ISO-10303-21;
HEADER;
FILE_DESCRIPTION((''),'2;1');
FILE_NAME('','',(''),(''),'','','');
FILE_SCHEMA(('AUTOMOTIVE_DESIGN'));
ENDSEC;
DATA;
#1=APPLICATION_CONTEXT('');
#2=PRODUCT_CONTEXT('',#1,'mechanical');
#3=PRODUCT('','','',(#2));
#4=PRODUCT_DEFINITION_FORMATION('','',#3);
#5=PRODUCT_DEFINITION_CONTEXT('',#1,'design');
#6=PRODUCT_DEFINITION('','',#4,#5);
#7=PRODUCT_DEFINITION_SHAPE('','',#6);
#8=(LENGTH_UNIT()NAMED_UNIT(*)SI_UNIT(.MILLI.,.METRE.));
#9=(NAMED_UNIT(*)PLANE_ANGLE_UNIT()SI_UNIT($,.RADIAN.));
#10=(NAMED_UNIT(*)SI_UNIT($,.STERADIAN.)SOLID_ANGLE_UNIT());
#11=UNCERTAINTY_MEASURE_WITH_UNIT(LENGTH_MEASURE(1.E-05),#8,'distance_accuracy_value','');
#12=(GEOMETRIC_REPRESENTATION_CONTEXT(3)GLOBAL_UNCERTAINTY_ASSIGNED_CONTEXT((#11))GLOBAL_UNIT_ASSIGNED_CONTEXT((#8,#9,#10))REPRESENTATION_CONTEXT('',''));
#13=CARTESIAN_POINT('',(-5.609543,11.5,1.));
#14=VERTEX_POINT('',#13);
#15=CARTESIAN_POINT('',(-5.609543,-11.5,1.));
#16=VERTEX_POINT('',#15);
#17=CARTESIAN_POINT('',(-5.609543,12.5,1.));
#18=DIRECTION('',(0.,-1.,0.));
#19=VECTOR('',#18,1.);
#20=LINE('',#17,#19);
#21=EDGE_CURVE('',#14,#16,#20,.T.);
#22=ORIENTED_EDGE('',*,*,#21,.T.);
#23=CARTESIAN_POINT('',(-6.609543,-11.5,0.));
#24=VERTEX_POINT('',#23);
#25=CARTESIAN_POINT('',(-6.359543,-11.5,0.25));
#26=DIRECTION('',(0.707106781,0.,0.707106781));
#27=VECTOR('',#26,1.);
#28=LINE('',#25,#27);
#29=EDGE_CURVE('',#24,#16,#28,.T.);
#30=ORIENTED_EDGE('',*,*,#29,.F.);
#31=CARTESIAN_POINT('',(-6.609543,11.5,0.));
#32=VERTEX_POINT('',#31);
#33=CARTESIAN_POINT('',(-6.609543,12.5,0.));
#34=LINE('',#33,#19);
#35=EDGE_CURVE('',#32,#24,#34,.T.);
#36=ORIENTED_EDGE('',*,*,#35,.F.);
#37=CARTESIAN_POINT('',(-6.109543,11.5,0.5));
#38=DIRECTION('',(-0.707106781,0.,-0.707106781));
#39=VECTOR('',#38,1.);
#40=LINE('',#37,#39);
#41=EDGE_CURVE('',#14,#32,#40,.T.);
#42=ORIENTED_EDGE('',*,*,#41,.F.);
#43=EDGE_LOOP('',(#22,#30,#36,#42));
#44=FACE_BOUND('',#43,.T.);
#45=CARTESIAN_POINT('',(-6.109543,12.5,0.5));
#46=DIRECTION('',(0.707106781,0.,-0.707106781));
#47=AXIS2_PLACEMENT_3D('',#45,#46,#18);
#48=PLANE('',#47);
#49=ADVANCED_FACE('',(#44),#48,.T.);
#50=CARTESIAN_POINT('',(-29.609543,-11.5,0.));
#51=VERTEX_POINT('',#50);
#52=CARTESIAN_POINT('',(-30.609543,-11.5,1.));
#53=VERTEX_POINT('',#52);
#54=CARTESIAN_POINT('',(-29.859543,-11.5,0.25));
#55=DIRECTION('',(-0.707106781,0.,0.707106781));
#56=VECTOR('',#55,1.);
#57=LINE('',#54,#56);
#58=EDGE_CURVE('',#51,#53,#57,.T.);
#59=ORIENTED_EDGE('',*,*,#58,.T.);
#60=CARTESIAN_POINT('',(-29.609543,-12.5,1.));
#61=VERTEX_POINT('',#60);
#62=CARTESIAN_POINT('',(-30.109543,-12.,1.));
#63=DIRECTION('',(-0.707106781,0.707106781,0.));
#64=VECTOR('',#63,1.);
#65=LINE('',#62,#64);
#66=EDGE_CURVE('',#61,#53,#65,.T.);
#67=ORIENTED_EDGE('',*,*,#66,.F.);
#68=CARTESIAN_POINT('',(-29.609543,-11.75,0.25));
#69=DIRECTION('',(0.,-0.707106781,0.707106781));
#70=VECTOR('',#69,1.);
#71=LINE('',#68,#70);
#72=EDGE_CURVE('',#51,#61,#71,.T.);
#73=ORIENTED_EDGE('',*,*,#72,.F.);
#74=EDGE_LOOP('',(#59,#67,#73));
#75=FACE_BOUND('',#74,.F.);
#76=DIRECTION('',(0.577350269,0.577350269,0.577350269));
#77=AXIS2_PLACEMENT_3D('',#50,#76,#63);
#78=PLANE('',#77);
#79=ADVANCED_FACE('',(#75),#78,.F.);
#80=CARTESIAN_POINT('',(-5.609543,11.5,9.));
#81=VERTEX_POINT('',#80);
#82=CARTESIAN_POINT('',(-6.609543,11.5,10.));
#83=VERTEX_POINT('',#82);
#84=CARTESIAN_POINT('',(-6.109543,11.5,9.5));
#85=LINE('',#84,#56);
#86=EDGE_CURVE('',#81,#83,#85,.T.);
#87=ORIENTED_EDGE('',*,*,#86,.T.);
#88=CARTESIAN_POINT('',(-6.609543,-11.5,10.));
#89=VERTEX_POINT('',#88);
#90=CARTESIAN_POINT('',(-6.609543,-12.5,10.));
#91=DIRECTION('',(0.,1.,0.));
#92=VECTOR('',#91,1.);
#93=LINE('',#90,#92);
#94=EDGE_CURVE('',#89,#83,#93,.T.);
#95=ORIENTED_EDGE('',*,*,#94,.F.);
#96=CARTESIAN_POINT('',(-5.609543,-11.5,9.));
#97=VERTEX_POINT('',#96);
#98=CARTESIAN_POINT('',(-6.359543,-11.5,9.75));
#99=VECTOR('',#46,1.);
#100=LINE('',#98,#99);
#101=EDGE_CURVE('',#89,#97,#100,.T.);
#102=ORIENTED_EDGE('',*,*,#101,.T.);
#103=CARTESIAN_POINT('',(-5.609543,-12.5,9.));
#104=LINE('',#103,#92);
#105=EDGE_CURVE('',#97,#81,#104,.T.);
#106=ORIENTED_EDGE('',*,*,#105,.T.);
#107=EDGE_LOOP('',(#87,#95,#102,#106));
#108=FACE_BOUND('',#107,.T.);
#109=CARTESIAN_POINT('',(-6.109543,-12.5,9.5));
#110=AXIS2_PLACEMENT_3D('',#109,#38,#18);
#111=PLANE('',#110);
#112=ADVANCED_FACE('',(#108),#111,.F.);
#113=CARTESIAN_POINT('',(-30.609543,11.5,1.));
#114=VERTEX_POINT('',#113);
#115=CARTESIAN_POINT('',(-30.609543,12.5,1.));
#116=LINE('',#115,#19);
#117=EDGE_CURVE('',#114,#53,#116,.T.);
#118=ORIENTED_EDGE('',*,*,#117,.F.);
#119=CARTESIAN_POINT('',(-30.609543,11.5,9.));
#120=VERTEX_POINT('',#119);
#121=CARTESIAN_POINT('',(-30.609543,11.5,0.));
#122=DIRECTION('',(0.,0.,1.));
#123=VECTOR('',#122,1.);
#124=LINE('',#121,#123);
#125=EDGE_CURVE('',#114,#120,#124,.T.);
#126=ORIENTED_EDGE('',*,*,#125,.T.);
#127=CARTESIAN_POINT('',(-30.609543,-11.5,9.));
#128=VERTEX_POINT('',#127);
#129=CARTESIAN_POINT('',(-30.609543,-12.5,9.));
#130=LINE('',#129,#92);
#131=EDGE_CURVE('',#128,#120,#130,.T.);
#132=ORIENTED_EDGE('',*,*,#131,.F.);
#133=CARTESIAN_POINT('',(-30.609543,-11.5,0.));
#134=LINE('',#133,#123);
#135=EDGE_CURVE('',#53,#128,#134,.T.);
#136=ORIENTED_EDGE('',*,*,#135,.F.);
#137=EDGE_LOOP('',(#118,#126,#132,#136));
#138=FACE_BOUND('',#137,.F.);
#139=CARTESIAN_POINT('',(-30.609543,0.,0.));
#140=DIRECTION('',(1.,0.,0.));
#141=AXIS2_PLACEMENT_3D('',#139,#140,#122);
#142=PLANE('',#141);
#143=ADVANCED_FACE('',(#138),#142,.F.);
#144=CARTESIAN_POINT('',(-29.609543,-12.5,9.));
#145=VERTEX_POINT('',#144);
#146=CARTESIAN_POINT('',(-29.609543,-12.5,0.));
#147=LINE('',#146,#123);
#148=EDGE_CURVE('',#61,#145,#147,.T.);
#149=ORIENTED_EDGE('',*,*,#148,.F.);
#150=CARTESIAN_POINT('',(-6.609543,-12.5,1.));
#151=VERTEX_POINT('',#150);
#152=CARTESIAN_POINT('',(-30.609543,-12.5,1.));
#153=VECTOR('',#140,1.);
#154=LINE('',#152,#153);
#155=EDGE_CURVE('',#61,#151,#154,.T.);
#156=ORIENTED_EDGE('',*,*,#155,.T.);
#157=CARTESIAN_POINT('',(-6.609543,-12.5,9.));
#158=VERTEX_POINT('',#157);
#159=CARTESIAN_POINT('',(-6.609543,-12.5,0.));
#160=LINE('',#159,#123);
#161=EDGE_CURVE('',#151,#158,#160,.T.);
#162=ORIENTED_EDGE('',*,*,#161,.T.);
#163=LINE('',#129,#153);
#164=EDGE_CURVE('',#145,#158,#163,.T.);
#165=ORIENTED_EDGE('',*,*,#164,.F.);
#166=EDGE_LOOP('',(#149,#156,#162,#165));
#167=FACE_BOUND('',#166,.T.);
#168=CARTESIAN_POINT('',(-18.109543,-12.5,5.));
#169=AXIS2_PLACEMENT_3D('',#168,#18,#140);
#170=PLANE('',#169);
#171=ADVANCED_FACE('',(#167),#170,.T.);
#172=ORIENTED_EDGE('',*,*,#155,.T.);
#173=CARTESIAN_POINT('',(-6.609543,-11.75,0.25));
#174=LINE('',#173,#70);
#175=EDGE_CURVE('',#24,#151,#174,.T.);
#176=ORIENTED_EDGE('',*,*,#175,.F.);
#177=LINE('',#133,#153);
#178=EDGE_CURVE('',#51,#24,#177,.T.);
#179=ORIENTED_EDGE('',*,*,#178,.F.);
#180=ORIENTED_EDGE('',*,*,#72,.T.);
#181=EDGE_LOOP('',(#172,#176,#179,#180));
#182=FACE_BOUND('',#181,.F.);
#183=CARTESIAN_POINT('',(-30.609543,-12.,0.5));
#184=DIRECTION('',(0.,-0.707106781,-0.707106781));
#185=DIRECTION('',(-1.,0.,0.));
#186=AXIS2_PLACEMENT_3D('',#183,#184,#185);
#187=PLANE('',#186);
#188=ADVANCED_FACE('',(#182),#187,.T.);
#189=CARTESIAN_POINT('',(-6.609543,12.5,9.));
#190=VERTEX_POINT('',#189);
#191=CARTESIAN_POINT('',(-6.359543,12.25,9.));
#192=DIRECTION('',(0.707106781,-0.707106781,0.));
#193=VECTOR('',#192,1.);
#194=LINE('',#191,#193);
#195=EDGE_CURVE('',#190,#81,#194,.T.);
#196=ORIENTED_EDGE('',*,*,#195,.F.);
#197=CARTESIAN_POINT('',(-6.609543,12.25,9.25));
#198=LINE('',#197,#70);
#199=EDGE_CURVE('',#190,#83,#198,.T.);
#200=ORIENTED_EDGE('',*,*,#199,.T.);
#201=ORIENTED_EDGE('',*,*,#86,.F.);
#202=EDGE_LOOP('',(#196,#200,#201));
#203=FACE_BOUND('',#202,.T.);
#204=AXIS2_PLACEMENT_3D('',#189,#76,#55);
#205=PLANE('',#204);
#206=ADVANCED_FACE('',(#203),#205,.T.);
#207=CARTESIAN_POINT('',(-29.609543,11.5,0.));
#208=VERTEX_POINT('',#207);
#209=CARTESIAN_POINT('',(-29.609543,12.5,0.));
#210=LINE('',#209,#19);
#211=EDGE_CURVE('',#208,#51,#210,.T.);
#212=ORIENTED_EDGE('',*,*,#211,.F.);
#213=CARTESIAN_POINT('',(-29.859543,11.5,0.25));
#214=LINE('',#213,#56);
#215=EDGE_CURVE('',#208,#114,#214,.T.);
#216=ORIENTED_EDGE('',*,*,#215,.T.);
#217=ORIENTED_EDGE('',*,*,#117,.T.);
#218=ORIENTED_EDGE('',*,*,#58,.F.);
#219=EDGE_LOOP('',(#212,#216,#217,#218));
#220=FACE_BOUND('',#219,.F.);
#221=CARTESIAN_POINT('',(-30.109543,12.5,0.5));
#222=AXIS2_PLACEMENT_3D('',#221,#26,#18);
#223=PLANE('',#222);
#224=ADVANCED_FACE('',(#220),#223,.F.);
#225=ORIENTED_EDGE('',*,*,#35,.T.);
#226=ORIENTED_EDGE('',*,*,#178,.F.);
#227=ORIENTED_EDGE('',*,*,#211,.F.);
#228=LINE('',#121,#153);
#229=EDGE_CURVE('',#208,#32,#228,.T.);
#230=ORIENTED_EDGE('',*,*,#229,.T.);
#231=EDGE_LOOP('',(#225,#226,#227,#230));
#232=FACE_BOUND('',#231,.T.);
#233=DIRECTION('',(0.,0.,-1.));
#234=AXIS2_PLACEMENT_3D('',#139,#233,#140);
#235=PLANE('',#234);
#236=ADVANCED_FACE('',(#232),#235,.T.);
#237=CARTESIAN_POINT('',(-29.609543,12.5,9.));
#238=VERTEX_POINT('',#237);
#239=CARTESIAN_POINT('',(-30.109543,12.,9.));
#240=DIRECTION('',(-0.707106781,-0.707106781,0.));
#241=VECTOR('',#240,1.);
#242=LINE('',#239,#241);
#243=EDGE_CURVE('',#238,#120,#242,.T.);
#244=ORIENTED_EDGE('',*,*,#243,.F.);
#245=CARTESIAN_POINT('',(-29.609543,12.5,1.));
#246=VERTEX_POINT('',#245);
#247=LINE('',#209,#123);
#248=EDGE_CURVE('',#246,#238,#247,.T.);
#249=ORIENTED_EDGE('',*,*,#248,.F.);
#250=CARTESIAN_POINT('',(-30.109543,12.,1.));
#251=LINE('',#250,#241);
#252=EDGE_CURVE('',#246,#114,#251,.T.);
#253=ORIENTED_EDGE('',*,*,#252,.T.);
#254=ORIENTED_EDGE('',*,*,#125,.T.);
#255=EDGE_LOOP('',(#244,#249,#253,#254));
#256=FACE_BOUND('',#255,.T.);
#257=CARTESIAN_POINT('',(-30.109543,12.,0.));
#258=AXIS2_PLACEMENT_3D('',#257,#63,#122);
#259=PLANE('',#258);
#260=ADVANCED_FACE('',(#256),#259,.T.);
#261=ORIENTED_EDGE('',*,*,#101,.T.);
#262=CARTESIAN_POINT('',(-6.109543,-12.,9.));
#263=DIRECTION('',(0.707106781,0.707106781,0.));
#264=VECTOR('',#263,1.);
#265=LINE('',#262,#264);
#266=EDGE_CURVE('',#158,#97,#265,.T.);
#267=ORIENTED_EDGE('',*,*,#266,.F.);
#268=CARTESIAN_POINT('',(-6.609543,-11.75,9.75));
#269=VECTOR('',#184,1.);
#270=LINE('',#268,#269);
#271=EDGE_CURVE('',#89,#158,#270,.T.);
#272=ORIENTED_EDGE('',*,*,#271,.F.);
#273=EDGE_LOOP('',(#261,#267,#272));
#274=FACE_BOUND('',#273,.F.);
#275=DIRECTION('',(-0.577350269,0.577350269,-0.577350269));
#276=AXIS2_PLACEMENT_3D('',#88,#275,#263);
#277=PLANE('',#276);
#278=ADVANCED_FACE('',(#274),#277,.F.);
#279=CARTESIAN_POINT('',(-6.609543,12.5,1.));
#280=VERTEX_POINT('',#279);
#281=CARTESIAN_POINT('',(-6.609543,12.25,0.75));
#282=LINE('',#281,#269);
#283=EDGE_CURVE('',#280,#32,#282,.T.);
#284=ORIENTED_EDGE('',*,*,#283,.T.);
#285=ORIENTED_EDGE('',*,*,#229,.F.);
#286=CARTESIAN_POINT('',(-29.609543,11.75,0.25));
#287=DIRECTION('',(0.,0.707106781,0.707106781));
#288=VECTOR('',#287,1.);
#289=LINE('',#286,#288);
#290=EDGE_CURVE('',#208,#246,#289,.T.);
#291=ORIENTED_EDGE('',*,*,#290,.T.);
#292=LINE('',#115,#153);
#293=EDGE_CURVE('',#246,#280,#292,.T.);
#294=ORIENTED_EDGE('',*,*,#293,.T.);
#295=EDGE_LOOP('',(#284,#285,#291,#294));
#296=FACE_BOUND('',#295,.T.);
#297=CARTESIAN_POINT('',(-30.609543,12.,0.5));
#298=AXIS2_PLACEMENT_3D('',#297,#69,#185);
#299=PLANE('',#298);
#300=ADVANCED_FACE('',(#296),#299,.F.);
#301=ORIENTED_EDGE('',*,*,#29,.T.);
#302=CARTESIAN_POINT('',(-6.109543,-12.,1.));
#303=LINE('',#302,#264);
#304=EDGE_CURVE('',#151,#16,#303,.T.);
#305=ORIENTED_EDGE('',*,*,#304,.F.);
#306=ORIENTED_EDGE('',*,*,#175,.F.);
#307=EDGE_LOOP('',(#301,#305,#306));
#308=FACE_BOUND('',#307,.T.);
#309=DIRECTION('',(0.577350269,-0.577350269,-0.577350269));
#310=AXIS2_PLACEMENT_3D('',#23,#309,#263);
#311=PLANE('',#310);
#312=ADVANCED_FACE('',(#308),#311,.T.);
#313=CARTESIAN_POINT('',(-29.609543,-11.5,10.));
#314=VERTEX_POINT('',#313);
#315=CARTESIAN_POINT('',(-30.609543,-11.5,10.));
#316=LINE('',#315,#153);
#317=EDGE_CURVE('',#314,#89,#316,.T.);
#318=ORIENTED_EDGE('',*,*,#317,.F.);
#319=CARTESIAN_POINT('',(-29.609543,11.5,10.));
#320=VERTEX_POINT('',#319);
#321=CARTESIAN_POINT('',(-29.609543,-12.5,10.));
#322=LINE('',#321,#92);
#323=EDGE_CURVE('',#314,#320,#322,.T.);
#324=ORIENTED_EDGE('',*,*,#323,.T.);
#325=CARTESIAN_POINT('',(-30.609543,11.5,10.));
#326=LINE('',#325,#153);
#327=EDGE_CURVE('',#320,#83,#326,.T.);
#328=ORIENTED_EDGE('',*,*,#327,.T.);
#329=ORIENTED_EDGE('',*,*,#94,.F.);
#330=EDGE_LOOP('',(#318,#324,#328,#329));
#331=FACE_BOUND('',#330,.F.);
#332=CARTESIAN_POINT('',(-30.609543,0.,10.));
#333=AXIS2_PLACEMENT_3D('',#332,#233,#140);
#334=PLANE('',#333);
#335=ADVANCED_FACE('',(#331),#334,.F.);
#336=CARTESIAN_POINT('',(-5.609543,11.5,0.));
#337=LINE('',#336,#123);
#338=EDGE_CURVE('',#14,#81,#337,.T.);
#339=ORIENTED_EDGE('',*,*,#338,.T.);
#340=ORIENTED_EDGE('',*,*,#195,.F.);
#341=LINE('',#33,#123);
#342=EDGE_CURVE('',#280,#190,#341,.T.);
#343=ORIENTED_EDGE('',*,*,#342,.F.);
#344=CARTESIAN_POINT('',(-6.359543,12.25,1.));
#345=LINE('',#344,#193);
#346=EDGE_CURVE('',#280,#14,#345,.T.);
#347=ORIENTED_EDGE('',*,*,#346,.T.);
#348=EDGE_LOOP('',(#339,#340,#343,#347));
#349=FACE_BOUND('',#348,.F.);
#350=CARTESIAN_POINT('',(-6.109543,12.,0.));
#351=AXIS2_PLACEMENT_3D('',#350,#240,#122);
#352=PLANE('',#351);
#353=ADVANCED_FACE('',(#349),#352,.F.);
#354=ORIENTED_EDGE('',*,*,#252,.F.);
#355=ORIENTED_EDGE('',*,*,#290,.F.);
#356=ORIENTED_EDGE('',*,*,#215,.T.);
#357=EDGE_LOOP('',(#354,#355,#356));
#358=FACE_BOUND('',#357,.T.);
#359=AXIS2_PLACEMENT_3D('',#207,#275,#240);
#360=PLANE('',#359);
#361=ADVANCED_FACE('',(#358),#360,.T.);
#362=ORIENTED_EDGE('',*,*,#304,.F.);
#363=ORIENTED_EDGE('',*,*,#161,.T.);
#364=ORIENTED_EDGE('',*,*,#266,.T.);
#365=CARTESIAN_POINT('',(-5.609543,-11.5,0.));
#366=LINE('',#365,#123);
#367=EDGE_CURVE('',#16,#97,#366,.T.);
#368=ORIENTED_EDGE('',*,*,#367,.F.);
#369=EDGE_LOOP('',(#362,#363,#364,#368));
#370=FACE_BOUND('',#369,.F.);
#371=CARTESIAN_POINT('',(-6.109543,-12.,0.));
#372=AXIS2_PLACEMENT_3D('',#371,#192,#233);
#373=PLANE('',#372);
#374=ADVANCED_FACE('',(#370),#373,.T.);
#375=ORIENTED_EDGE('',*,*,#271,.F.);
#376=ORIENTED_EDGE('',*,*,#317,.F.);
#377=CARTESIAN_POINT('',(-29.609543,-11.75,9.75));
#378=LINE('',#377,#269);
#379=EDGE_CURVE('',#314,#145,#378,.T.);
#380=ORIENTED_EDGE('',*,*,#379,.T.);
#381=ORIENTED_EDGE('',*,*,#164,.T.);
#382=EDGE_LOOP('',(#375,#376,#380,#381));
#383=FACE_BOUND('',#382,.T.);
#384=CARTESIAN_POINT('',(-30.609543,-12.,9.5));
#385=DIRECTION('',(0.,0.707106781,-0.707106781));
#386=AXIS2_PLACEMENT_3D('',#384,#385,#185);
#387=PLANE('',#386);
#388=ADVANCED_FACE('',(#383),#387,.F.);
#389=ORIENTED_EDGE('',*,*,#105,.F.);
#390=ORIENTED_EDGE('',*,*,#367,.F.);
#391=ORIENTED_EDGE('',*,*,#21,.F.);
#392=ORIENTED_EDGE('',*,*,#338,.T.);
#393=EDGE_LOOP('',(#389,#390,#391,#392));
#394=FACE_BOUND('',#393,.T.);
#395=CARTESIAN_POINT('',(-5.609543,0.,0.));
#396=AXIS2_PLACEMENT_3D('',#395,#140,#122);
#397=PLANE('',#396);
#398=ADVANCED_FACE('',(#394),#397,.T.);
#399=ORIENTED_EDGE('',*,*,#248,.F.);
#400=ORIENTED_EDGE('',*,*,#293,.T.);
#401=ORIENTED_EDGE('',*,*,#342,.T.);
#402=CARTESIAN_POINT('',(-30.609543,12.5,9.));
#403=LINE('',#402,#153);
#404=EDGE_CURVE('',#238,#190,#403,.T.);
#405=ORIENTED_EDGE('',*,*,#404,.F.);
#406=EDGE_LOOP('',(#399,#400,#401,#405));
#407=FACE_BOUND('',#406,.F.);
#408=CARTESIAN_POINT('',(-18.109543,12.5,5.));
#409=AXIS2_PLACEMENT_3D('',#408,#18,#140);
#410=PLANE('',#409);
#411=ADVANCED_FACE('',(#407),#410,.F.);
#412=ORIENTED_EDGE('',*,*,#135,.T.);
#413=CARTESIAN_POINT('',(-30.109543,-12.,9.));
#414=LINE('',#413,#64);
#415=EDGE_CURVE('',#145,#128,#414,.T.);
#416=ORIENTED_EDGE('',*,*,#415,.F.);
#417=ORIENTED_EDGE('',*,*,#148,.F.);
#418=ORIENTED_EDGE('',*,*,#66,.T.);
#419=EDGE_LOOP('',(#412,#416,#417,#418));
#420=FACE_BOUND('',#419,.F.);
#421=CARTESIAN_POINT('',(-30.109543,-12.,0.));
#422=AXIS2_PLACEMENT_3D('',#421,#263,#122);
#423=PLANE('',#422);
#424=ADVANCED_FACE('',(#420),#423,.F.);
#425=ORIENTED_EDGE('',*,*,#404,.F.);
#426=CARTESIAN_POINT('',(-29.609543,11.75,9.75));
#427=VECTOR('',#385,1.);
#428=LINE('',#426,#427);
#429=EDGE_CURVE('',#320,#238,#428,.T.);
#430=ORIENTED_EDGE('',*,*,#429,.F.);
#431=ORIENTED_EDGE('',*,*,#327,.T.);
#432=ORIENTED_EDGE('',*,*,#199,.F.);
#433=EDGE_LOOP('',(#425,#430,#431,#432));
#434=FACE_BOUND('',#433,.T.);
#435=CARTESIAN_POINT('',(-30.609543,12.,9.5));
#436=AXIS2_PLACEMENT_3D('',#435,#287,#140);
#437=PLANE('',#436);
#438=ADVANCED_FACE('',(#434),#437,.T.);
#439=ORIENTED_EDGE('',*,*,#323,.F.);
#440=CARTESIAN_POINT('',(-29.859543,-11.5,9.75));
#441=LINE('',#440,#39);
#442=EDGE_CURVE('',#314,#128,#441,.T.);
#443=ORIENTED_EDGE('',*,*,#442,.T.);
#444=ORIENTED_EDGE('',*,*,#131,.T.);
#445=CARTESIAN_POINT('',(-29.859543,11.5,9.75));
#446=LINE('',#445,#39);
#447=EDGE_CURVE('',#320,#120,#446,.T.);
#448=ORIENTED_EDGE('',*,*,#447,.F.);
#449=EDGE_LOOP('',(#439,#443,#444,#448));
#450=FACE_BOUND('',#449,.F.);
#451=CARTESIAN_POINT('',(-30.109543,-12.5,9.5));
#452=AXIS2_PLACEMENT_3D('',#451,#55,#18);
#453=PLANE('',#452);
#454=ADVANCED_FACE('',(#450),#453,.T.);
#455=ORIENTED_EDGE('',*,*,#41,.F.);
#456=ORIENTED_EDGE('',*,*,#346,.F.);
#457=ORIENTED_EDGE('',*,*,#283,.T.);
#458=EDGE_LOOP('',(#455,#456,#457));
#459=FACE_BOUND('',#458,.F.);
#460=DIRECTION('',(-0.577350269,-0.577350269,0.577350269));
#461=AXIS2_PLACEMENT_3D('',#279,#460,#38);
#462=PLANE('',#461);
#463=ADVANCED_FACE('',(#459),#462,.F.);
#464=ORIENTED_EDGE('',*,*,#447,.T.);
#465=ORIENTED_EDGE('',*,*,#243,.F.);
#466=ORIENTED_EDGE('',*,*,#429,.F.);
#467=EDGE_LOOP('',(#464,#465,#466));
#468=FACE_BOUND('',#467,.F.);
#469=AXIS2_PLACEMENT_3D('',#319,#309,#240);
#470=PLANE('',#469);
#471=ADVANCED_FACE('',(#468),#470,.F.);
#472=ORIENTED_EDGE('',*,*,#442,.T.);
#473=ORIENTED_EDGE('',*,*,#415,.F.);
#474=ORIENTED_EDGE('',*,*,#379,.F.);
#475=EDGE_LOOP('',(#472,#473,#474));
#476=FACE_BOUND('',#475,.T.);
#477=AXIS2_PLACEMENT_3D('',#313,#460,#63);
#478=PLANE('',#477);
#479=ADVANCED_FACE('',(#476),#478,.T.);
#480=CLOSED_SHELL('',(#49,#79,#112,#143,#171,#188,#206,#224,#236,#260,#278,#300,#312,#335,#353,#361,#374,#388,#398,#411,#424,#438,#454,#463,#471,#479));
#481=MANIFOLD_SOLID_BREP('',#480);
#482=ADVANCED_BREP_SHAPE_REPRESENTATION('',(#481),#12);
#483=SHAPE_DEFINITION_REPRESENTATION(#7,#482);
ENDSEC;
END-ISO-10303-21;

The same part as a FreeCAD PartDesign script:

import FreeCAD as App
import Part
import Sketcher


def add_polygon(sketch, points):
    """Adds a closed chain of lines whose ends are joined by coincident constraints."""
    first, n = sketch.GeometryCount, len(points)
    for a, b in zip(points, points[1:] + points[:1]):
        sketch.addGeometry(Part.LineSegment(App.Vector(*a, 0), App.Vector(*b, 0)), False)
    for i in range(n):
        sketch.addConstraint(Sketcher.Constraint("Coincident", first + i, 2, first + (i + 1) % n, 1))

doc = App.newDocument("Part")
body = doc.addObject("PartDesign::Body", "Body")

# Sketch on XZ plane
sketch1 = body.newObject("Sketcher::SketchObject", "Sketch")
sketch1.AttachmentSupport = (doc.getObject("XZ_Plane"), [""])
sketch1.MapMode = "FlatFace"
add_polygon(sketch1, [(-31, 10), (-31, 0), (-6, 0), (-6, 10)])  # lines 0-3
sketch1.addConstraint([
    Sketcher.Constraint("Vertical", 0),
    Sketcher.Constraint("Horizontal", 1),
    Sketcher.Constraint("Vertical", 2),
    Sketcher.Constraint("Horizontal", 3),
    Sketcher.Constraint("PointOnObject", 0, 2, -1),
    Sketcher.Constraint("DistanceX", 1, 1, 1, 2, 25.0),
    Sketcher.Constraint("DistanceY", 0, 2, 0, 1, 10.0),
    Sketcher.Constraint("DistanceX", 0, 2, -1, 1, 30.609543),
])
pad1 = body.newObject("PartDesign::Pad", "Pad")
pad1.Profile = sketch1
pad1.Length = 25
pad1.Midplane = True
doc.recompute()

chamfer = body.newObject("PartDesign::Chamfer", "Chamfer")
chamfer.Base = (pad1, ["Edge1"])
chamfer.UseAllEdges = True
chamfer.Size = 1

doc.recompute()
